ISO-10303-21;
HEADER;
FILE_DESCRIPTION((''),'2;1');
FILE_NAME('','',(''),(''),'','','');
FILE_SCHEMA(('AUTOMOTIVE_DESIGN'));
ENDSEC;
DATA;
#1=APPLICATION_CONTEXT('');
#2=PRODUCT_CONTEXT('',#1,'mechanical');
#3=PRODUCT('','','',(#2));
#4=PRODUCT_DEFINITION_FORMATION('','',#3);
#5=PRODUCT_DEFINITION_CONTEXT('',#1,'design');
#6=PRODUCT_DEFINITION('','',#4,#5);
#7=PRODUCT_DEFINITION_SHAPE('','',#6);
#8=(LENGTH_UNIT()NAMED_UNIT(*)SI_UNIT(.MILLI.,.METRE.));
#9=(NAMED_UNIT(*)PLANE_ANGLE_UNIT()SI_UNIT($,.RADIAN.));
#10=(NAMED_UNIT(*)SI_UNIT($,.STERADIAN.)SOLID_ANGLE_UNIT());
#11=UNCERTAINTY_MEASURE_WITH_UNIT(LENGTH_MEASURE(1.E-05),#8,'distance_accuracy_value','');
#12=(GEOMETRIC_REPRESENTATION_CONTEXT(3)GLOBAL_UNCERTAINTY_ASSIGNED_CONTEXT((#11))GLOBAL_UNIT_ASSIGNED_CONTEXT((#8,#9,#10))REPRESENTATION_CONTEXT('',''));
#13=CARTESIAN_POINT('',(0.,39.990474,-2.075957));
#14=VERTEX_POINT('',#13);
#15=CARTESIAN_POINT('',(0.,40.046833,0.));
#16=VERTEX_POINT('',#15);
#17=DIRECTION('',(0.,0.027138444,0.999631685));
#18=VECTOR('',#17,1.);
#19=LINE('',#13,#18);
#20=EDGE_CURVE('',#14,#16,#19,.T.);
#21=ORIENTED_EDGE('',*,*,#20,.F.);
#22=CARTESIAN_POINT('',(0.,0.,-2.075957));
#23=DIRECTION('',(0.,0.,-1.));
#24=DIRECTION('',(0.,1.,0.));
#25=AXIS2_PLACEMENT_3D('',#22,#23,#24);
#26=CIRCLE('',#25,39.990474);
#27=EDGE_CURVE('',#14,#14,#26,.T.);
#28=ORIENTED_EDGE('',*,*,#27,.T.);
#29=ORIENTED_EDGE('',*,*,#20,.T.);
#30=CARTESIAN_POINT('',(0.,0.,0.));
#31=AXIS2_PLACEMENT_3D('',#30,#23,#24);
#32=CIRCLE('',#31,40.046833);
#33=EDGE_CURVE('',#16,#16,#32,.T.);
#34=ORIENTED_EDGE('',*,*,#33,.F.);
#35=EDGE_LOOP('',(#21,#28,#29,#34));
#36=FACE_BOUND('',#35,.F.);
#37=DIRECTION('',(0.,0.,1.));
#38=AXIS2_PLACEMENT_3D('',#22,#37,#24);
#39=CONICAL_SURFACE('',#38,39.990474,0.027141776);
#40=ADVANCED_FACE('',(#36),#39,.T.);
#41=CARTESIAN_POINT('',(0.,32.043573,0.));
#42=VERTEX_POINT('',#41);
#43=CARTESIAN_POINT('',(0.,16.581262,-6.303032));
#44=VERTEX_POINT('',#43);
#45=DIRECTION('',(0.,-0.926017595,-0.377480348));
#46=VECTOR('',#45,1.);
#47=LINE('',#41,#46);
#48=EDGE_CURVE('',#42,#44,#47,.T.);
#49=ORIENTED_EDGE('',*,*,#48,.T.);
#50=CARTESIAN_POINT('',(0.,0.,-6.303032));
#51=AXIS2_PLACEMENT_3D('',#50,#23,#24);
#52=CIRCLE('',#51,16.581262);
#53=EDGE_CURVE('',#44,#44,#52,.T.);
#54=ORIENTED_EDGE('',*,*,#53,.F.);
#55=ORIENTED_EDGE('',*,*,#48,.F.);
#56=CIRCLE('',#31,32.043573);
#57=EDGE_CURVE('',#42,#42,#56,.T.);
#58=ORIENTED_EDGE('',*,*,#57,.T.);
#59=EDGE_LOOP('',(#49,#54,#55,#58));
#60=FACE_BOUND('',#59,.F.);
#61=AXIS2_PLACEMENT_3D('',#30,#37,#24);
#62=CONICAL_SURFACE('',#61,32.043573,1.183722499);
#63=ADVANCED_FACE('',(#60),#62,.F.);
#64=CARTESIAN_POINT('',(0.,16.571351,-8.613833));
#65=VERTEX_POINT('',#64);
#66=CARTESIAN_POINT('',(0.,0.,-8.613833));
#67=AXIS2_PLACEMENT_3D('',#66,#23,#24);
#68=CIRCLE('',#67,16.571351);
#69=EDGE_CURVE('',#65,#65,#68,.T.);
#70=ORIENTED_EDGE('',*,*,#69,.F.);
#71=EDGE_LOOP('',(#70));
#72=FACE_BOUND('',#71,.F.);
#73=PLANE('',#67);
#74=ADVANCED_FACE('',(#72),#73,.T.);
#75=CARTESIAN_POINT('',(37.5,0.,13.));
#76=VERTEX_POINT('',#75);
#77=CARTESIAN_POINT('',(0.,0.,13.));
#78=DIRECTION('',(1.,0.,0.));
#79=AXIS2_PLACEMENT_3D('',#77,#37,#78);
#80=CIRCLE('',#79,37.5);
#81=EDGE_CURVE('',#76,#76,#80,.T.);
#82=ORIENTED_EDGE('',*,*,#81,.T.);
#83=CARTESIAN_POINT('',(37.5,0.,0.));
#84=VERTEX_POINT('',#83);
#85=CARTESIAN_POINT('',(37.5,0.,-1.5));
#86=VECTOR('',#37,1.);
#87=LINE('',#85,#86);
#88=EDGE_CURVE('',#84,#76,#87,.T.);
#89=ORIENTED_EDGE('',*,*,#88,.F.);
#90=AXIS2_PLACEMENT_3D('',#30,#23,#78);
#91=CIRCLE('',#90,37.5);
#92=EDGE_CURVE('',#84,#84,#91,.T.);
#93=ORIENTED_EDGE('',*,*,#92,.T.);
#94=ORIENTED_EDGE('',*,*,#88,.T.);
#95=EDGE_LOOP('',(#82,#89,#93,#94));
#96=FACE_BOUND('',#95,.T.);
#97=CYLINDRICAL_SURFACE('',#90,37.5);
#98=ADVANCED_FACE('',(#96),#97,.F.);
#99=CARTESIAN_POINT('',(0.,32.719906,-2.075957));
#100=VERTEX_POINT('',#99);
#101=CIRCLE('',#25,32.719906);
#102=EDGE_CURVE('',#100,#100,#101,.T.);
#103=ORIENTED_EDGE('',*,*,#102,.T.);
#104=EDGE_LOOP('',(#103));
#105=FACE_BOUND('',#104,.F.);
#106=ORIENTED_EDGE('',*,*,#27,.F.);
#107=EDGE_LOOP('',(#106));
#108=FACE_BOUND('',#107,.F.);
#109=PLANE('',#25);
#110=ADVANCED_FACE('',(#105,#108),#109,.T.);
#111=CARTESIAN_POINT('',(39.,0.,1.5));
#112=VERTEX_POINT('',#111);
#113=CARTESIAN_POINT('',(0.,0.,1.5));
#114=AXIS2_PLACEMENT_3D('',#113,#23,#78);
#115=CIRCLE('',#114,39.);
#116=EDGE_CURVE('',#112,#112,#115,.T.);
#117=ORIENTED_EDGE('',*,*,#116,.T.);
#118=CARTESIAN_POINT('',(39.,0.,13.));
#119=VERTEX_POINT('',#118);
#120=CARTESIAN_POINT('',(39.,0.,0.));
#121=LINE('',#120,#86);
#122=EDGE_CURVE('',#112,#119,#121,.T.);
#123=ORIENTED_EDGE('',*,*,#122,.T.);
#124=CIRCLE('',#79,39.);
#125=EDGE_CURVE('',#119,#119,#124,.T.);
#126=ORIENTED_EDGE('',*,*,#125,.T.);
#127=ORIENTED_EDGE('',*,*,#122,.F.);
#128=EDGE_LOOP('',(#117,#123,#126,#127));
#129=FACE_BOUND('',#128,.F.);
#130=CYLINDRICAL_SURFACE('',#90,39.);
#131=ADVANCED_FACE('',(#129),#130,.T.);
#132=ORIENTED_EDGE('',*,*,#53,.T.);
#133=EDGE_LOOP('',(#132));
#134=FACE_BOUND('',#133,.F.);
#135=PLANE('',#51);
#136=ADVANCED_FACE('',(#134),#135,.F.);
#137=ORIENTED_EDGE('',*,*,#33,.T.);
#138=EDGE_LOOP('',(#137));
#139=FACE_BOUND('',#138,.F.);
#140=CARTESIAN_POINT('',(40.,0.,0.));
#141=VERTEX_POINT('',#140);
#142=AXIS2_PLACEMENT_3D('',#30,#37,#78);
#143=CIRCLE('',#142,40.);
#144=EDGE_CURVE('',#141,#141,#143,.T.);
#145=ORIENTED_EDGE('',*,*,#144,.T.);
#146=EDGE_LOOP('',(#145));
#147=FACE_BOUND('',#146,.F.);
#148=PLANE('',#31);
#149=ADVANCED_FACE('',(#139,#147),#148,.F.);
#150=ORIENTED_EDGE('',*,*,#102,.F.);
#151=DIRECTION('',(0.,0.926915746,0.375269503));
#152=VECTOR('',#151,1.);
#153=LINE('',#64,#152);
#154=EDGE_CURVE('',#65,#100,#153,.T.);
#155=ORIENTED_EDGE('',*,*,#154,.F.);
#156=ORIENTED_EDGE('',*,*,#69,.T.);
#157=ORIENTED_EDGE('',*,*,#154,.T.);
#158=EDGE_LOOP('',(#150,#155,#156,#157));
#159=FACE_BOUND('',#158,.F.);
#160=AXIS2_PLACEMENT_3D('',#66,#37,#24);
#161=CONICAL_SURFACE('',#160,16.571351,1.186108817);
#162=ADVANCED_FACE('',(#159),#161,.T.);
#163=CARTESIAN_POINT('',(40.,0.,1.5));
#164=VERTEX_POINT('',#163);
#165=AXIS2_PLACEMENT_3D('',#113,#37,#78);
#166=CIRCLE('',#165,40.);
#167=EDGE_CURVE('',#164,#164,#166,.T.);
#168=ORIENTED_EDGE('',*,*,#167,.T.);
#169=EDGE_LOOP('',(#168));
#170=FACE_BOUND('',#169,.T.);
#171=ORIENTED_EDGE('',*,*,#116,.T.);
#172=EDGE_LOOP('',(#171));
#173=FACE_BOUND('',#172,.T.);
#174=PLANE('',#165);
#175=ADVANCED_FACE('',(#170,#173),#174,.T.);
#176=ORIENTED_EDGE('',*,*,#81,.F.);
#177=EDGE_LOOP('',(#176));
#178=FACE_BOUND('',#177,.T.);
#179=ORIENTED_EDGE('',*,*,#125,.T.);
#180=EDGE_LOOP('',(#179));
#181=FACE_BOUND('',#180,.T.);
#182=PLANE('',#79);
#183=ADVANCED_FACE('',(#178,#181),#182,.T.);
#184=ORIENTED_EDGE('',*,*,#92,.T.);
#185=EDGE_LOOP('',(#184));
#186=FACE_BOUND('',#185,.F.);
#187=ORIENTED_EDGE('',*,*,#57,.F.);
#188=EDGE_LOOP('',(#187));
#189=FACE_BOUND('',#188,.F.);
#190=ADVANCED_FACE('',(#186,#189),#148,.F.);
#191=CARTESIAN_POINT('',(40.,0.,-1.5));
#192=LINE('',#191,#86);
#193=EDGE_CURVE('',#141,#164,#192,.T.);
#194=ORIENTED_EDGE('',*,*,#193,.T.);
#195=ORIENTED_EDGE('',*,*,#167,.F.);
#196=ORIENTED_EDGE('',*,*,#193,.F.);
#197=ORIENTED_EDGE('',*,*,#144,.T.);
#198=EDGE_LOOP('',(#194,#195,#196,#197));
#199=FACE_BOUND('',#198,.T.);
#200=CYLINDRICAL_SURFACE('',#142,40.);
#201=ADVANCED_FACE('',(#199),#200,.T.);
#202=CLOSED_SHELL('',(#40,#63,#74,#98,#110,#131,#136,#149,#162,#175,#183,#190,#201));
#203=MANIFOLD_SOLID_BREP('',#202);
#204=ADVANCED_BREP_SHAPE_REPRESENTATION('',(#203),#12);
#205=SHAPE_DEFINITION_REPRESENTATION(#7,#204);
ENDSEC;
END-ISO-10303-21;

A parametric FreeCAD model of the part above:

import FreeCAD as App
import Part
import Sketcher

V = App.Vector


def add_polygon(sketch, points):
    """Adds a closed chain of lines whose ends are joined by coincident constraints."""
    first, n = sketch.GeometryCount, len(points)
    for a, b in zip(points, points[1:] + points[:1]):
        sketch.addGeometry(Part.LineSegment(App.Vector(*a, 0), App.Vector(*b, 0)), False)
    for i in range(n):
        sketch.addConstraint(Sketcher.Constraint("Coincident", first + i, 2, first + (i + 1) % n, 1))

doc = App.newDocument("Part")
body = doc.addObject("PartDesign::Body", "Body")

# Sketch on XY plane
sketch1 = doc.addObject("Sketcher::SketchObject", "Sketch")
body.addObject(sketch1)
sketch1.AttachmentSupport = (doc.XY_Plane, [""])
sketch1.MapMode = "FlatFace"
sketch1.addGeometry(Part.Circle(V(0, 0, 0), V(0, 0, 1), 39), False)
sketch1.addGeometry(Part.Circle(V(0, 0, 0), V(0, 0, 1), 38), False)
sketch1.addConstraint(Sketcher.Constraint("Coincident", 0, 3, -1, 1))
sketch1.addConstraint(Sketcher.Constraint("Coincident", 1, 3, -1, 1))
sketch1.addConstraint(Sketcher.Constraint("Diameter", 0, 78.0))
sketch1.addConstraint(Sketcher.Constraint("Diameter", 1, 75.0))
pad1 = doc.addObject("PartDesign::Pad", "Pad")
body.addObject(pad1)
pad1.Profile = sketch1
pad1.Length = 13

# Sketch on XY plane
sketch2 = doc.addObject("Sketcher::SketchObject", "Sketch001")
body.addObject(sketch2)
sketch2.AttachmentSupport = (doc.XY_Plane, [""])
sketch2.MapMode = "FlatFace"
sketch2.addGeometry(Part.Circle(V(0, 0, 0), V(0, 0, 1), 40), False)
sketch2.addGeometry(Part.Circle(V(0, 0, 0), V(0, 0, 1), 38), False)
sketch2.addConstraint(Sketcher.Constraint("Coincident", 0, 3, -1, 1))
sketch2.addConstraint(Sketcher.Constraint("Coincident", 1, 3, -1, 1))
sketch2.addConstraint(Sketcher.Constraint("Diameter", 0, 80.0))
sketch2.addConstraint(Sketcher.Constraint("Diameter", 1, 75.0))
pad2 = doc.addObject("PartDesign::Pad", "Pad001")
body.addObject(pad2)
pad2.Profile = sketch2
pad2.Length = 3
pad2.Midplane = True

# Sketch on YZ plane
sketch3 = doc.addObject("Sketcher::SketchObject", "Sketch002")
body.addObject(sketch3)
sketch3.AttachmentSupport = (doc.YZ_Plane, [""])
sketch3.MapMode = "FlatFace"
add_polygon(sketch3, [(40, -2.1), (40, 0), (32, 0), (16.6, -6.3), (0, -6.3), (0, -8.6), (16.6, -8.6), (32.7, -2.1)])  # lines 0-7
sketch3.addConstraint(Sketcher.Constraint("Horizontal", 1))
sketch3.addConstraint(Sketcher.Constraint("Horizontal", 3))
sketch3.addConstraint(Sketcher.Constraint("Vertical", 4))
sketch3.addConstraint(Sketcher.Constraint("Horizontal", 5))
sketch3.addConstraint(Sketcher.Constraint("Horizontal", 7))
sketch3.addConstraint(Sketcher.Constraint("PointOnObject", 0, 2, -1))
sketch3.addConstraint(Sketcher.Constraint("PointOnObject", 3, 2, -2))
sketch3.addConstraint(Sketcher.Constraint("DistanceY", 4, 2, 4, 1, 2.310801))
sketch3.addConstraint(Sketcher.Constraint("DistanceX", 1, 2, 1, 1, 8.00326))
sketch3.addConstraint(Sketcher.Constraint("DistanceX", 3, 2, 3, 1, 16.581262))
sketch3.addConstraint(Sketcher.Constraint("DistanceX", 5, 1, 5, 2, 16.571351))
sketch3.addConstraint(Sketcher.Constraint("DistanceX", 1, 2, 7, 2, 7.946901))
sketch3.addConstraint(Sketcher.Constraint("Distance", 0, 2.076722))
sketch3.addConstraint(Sketcher.Constraint("DistanceX", 7, 1, 7, 2, 7.270568))
sketch3.addConstraint(Sketcher.Constraint("DistanceX", 2, 2, 1, 2, 15.462311))
sketch3.addConstraint(Sketcher.Constraint("Distance", 2, 16.697643))
revolution = doc.addObject("PartDesign::Revolution", "Revolution")
body.addObject(revolution)
revolution.Profile = sketch3
revolution.ReferenceAxis = (sketch3, ["V_Axis"])
revolution.Angle = 360

doc.recompute()
